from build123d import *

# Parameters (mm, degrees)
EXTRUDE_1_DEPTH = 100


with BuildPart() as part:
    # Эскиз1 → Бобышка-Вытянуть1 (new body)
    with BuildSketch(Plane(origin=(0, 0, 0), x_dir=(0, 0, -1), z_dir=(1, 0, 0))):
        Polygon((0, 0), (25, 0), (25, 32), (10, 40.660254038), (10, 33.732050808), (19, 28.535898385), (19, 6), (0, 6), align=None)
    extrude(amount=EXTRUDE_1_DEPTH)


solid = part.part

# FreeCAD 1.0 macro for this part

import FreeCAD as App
import Part
import Sketcher

V = App.Vector
Q = App.Units.Quantity


def add_polygon(sketch, points):
    """Adds a closed chain of lines whose ends are joined by coincident constraints."""
    first, n = sketch.GeometryCount, len(points)
    for a, b in zip(points, points[1:] + points[:1]):
        sketch.addGeometry(Part.LineSegment(App.Vector(*a, 0), App.Vector(*b, 0)), False)
    for i in range(n):
        sketch.addConstraint(Sketcher.Constraint("Coincident", first + i, 2, first + (i + 1) % n, 1))

doc = App.newDocument("Part")
body = doc.addObject("PartDesign::Body", "Body")

# Sketch on YZ plane
sketch1 = doc.addObject("Sketcher::SketchObject", "Sketch")
body.addObject(sketch1)
sketch1.AttachmentSupport = (doc.YZ_Plane, [""])
sketch1.MapMode = "FlatFace"
add_polygon(sketch1, [(0, 0), (0, -25), (32, -25), (41, -10), (34, -10), (29, -19), (6, -19), (6, 0)])  # lines 0-7
sketch1.addConstraint([
    Sketcher.Constraint("Vertical", 0),
    Sketcher.Constraint("Horizontal", 1),
    Sketcher.Constraint("Horizontal", 3),
    Sketcher.Constraint("Horizontal", 5),
    Sketcher.Constraint("Vertical", 6),
    Sketcher.Constraint("Horizontal", 7),
    Sketcher.Constraint("Coincident", 7, 2, -1, 1),
    Sketcher.Constraint("Parallel", 2, 4),
    Sketcher.Constraint("DistanceX", 1, 1, 1, 2, Q("32 mm")),
    Sketcher.Constraint("DistanceX", 7, 2, 7, 1, Q("6 mm")),
    Sketcher.Constraint("DistanceY", 0, 2, 0, 1, Q("25 mm")),
    Sketcher.Constraint("DistanceY", 6, 1, 6, 2, Q("19 mm")),
    Sketcher.Constraint("Angle", 2, Q("60 deg")),
    Sketcher.Constraint("DistanceY", 2, 2, -1, 1, Q("10 mm")),
    Sketcher.Constraint("DistanceX", 5, 2, 5, 1, Q("22.535898 mm")),
])
pad1 = doc.addObject("PartDesign::Pad", "Pad")
body.addObject(pad1)
pad1.Profile = sketch1
pad1.Length = 100

doc.recompute()
